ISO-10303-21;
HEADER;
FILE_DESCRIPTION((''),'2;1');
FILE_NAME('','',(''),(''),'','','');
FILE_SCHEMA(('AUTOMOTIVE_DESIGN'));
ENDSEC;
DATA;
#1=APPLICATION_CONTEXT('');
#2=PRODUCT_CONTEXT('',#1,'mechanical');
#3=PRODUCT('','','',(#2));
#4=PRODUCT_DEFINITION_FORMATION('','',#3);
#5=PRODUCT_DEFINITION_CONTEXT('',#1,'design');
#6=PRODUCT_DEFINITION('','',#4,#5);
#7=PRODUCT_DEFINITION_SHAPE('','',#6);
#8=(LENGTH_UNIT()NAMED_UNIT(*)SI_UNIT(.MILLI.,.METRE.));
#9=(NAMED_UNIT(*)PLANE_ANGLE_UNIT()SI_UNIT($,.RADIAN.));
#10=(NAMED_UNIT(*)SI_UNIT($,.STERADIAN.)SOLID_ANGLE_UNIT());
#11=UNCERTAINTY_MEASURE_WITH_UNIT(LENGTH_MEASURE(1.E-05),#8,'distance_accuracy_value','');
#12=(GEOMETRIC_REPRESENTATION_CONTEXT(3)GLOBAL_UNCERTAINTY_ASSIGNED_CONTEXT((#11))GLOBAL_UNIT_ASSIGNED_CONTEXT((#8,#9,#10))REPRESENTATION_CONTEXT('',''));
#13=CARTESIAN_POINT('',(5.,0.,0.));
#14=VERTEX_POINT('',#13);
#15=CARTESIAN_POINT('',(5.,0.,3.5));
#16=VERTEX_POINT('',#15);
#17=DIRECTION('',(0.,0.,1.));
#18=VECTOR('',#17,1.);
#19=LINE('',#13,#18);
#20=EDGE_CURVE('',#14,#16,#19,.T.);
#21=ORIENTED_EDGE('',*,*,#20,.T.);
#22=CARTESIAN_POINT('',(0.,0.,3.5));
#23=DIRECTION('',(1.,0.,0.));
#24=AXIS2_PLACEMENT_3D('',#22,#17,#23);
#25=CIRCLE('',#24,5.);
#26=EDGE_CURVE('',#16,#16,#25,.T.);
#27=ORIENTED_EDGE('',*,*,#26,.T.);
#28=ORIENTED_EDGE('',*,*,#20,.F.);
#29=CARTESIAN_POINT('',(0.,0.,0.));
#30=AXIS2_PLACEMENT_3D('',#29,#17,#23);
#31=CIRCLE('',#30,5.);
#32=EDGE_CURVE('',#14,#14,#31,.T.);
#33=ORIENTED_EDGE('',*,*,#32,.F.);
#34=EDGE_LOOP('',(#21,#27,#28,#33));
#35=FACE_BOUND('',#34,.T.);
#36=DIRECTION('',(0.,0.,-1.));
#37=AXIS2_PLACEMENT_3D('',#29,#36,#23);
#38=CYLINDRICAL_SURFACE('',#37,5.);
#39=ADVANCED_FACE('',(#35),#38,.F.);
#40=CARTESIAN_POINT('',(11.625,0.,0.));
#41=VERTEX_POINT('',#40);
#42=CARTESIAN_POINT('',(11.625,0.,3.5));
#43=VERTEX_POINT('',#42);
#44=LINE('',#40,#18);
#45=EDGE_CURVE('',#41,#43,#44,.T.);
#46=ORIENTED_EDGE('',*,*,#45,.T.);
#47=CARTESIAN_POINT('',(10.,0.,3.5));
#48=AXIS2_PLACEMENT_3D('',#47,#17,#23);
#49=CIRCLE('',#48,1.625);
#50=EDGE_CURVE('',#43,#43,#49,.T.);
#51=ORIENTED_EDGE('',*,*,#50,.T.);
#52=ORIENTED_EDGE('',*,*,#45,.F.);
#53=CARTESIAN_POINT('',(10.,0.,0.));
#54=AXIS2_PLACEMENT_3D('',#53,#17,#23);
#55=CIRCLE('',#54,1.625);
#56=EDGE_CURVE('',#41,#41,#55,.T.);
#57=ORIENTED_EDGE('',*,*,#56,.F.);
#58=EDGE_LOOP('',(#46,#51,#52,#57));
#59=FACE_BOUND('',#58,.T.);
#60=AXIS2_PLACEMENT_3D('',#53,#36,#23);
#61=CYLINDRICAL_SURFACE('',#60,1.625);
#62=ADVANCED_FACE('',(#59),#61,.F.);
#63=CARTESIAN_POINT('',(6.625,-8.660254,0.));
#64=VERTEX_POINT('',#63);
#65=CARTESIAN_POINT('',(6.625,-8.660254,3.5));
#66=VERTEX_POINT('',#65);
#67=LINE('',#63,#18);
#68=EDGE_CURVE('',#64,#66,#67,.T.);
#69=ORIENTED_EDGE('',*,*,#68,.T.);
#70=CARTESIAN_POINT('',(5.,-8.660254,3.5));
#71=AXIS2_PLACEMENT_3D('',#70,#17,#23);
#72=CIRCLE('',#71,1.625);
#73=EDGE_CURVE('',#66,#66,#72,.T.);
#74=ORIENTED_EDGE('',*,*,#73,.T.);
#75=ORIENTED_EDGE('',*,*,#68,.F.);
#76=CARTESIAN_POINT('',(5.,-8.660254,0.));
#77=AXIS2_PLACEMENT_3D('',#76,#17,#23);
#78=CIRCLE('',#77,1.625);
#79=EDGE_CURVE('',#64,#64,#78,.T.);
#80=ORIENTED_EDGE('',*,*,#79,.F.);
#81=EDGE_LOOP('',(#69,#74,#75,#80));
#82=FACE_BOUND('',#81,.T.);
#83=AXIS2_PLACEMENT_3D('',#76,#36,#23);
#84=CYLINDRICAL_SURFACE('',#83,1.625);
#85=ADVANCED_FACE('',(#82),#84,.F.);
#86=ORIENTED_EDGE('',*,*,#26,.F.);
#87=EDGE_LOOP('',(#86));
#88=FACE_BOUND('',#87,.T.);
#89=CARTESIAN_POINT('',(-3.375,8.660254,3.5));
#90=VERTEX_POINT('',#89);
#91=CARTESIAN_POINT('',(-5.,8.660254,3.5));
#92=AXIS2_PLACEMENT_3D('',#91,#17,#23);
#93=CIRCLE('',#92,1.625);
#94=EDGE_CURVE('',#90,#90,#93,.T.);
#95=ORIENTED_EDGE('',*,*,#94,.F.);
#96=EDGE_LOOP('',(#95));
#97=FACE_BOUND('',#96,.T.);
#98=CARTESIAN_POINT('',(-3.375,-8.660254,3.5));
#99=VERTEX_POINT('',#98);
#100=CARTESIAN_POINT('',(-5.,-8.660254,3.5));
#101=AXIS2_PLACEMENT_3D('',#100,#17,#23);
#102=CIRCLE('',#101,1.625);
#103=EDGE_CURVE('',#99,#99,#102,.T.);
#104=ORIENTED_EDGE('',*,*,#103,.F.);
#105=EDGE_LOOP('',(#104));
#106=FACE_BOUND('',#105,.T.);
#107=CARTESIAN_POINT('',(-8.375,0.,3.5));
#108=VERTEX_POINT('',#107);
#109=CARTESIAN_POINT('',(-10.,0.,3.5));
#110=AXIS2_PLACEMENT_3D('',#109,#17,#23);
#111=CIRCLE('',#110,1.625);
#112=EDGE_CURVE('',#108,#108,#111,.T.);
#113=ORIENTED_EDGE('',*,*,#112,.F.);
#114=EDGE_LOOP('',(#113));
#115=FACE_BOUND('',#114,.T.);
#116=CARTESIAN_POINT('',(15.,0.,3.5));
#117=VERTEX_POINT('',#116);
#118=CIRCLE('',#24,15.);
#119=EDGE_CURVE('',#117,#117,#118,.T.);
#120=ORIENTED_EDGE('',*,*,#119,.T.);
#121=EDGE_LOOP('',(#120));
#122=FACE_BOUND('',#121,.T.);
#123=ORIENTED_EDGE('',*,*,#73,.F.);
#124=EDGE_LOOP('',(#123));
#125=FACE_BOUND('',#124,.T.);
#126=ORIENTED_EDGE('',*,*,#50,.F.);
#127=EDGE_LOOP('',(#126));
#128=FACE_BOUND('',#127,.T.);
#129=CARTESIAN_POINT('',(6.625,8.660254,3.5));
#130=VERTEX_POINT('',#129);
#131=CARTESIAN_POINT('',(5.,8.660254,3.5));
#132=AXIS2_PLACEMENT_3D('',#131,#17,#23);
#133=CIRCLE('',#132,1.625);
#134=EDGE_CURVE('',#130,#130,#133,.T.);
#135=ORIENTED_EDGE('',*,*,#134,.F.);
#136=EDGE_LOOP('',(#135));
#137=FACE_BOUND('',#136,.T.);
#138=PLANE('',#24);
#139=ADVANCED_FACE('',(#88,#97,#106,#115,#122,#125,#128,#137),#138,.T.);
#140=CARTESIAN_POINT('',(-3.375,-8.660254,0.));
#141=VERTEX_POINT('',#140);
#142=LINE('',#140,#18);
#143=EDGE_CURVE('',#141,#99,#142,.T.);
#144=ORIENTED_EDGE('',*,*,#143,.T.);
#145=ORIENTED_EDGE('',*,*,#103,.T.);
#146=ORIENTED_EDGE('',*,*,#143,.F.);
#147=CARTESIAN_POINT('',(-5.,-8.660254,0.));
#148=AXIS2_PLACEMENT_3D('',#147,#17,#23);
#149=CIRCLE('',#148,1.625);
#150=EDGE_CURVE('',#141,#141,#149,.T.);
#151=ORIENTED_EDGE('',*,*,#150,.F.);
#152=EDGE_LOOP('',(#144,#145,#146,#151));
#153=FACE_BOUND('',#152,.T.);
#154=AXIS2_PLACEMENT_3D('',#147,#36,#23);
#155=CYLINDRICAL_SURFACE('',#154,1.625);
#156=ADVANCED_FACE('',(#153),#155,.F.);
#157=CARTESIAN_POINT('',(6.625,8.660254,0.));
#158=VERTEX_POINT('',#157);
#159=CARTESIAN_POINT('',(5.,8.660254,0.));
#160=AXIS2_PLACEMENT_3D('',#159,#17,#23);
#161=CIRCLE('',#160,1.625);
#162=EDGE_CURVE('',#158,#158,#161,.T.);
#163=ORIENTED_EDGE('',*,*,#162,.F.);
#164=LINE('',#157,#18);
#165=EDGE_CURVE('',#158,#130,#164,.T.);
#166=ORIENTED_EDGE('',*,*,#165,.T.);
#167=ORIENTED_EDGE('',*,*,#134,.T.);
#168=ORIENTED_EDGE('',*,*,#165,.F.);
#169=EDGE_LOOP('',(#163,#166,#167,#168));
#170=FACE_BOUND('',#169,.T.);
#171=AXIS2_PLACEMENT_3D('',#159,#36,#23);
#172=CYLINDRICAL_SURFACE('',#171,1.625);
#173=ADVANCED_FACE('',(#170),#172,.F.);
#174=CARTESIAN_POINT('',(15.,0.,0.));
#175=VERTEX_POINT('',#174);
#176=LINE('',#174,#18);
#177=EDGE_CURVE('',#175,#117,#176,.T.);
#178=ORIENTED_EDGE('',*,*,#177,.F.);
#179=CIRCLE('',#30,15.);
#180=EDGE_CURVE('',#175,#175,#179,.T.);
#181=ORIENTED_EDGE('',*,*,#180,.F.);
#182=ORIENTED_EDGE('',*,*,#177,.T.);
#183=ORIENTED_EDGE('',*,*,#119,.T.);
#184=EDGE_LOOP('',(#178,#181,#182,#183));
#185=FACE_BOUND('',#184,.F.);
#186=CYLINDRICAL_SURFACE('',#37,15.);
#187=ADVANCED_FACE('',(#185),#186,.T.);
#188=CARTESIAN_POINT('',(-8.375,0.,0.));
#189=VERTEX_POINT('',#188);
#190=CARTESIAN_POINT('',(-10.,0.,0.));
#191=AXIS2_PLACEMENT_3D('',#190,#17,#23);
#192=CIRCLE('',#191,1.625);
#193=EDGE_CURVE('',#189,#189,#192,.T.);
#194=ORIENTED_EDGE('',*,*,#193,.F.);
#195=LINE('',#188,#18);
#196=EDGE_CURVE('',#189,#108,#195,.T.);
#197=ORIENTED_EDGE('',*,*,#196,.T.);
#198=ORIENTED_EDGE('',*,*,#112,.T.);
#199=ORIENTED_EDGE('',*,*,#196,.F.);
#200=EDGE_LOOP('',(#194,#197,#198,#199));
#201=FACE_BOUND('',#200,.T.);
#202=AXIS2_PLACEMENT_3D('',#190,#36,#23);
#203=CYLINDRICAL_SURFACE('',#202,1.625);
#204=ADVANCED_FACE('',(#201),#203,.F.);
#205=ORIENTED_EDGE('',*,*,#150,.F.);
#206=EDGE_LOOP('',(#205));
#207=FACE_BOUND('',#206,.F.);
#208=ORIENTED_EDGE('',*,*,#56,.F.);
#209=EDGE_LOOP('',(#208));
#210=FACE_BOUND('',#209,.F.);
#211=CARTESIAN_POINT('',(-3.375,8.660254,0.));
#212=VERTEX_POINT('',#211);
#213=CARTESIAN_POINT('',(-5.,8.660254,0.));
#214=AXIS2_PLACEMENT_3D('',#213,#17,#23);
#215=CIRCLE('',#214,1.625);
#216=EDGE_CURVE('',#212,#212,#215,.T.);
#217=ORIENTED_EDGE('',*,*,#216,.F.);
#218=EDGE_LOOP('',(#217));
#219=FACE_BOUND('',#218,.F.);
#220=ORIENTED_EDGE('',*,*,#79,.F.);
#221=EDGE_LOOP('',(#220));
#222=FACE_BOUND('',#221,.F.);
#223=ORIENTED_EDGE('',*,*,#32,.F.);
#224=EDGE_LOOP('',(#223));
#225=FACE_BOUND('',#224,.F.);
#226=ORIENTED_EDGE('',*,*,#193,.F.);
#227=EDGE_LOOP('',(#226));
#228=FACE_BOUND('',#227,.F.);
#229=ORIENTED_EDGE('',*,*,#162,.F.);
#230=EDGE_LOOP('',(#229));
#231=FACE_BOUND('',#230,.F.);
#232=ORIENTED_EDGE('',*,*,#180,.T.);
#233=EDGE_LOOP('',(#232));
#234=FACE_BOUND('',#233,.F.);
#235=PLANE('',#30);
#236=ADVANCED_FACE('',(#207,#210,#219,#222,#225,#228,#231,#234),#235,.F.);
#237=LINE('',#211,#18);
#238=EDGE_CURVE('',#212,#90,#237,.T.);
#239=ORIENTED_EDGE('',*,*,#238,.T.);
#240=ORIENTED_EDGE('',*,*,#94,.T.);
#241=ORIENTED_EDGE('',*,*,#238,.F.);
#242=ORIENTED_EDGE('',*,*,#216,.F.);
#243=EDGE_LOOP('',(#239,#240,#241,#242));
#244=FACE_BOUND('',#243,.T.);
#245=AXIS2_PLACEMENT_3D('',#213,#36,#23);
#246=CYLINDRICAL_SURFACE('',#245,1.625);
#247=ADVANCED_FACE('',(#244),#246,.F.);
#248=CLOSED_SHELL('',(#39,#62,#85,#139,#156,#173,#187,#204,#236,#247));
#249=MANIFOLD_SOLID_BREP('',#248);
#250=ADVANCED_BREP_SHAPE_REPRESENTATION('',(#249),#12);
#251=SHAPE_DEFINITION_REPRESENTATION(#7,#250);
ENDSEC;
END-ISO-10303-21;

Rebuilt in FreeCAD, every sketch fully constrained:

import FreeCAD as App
import Part
import Sketcher
from FreeCAD import Vector
Q = App.Units.Quantity

doc = App.newDocument("Part")
body = doc.addObject("PartDesign::Body", "Body")

# Sketch on XY plane
sketch1 = body.newObject("Sketcher::SketchObject", "Sketch")
sketch1.AttachmentSupport = (doc.getObject("XY_Plane"), [""])
sketch1.MapMode = "FlatFace"
sketch1.addGeometry([
    Part.Circle(Vector(0, 0, 0), Vector(0, 0, 1), 15),  # 0
    Part.Circle(Vector(-5, -8.660254, 0), Vector(0, 0, 1), 1.625),  # 1
    Part.Circle(Vector(5, -8.660254, 0), Vector(0, 0, 1), 1.625),  # 2
    Part.Circle(Vector(-10, 0, 0), Vector(0, 0, 1), 1.625),  # 3
    Part.Circle(Vector(-5, 8.660254, 0), Vector(0, 0, 1), 1.625),  # 4
    Part.Circle(Vector(0, 0, 0), Vector(0, 0, 1), 5),  # 5
    Part.Circle(Vector(10, 0, 0), Vector(0, 0, 1), 1.625),  # 6
    Part.Circle(Vector(5, 8.660254, 0), Vector(0, 0, 1), 1.625),  # 7
], False)
sketch1.addConstraint([
    Sketcher.Constraint("Coincident", 0, 3, -1, 1),
    Sketcher.Constraint("Coincident", 5, 3, -1, 1),
    Sketcher.Constraint("Equal", 1, 2),
    Sketcher.Constraint("Equal", 2, 3),
    Sketcher.Constraint("Equal", 3, 4),
    Sketcher.Constraint("Equal", 4, 6),
    Sketcher.Constraint("Equal", 6, 7),
    Sketcher.Constraint("Symmetric", 2, 3, 4, 3, -1, 1),
    Sketcher.Constraint("Symmetric", 3, 3, 6, 3, -1, 1),
    Sketcher.Constraint("Symmetric", 1, 3, 7, 3, -1, 1),
    Sketcher.Constraint("Symmetric", 1, 3, 2, 3, -2),
    Sketcher.Constraint("PointOnObject", 3, 3, -1),
    Sketcher.Constraint("Diameter", 0, Q("30 mm")),
    Sketcher.Constraint("Diameter", 5, Q("10 mm")),
    Sketcher.Constraint("Diameter", 1, Q("3.25 mm")),
    Sketcher.Constraint("DistanceX", 1, 3, -1, 1, Q("5 mm")),
    Sketcher.Constraint("DistanceX", 3, 3, -1, 1, Q("10 mm")),
    Sketcher.Constraint("DistanceY", 1, 3, 4, 3, Q("17.320508 mm")),
])
pad1 = body.newObject("PartDesign::Pad", "Pad")
pad1.Profile = sketch1
pad1.Length = 3.5

doc.recompute()
